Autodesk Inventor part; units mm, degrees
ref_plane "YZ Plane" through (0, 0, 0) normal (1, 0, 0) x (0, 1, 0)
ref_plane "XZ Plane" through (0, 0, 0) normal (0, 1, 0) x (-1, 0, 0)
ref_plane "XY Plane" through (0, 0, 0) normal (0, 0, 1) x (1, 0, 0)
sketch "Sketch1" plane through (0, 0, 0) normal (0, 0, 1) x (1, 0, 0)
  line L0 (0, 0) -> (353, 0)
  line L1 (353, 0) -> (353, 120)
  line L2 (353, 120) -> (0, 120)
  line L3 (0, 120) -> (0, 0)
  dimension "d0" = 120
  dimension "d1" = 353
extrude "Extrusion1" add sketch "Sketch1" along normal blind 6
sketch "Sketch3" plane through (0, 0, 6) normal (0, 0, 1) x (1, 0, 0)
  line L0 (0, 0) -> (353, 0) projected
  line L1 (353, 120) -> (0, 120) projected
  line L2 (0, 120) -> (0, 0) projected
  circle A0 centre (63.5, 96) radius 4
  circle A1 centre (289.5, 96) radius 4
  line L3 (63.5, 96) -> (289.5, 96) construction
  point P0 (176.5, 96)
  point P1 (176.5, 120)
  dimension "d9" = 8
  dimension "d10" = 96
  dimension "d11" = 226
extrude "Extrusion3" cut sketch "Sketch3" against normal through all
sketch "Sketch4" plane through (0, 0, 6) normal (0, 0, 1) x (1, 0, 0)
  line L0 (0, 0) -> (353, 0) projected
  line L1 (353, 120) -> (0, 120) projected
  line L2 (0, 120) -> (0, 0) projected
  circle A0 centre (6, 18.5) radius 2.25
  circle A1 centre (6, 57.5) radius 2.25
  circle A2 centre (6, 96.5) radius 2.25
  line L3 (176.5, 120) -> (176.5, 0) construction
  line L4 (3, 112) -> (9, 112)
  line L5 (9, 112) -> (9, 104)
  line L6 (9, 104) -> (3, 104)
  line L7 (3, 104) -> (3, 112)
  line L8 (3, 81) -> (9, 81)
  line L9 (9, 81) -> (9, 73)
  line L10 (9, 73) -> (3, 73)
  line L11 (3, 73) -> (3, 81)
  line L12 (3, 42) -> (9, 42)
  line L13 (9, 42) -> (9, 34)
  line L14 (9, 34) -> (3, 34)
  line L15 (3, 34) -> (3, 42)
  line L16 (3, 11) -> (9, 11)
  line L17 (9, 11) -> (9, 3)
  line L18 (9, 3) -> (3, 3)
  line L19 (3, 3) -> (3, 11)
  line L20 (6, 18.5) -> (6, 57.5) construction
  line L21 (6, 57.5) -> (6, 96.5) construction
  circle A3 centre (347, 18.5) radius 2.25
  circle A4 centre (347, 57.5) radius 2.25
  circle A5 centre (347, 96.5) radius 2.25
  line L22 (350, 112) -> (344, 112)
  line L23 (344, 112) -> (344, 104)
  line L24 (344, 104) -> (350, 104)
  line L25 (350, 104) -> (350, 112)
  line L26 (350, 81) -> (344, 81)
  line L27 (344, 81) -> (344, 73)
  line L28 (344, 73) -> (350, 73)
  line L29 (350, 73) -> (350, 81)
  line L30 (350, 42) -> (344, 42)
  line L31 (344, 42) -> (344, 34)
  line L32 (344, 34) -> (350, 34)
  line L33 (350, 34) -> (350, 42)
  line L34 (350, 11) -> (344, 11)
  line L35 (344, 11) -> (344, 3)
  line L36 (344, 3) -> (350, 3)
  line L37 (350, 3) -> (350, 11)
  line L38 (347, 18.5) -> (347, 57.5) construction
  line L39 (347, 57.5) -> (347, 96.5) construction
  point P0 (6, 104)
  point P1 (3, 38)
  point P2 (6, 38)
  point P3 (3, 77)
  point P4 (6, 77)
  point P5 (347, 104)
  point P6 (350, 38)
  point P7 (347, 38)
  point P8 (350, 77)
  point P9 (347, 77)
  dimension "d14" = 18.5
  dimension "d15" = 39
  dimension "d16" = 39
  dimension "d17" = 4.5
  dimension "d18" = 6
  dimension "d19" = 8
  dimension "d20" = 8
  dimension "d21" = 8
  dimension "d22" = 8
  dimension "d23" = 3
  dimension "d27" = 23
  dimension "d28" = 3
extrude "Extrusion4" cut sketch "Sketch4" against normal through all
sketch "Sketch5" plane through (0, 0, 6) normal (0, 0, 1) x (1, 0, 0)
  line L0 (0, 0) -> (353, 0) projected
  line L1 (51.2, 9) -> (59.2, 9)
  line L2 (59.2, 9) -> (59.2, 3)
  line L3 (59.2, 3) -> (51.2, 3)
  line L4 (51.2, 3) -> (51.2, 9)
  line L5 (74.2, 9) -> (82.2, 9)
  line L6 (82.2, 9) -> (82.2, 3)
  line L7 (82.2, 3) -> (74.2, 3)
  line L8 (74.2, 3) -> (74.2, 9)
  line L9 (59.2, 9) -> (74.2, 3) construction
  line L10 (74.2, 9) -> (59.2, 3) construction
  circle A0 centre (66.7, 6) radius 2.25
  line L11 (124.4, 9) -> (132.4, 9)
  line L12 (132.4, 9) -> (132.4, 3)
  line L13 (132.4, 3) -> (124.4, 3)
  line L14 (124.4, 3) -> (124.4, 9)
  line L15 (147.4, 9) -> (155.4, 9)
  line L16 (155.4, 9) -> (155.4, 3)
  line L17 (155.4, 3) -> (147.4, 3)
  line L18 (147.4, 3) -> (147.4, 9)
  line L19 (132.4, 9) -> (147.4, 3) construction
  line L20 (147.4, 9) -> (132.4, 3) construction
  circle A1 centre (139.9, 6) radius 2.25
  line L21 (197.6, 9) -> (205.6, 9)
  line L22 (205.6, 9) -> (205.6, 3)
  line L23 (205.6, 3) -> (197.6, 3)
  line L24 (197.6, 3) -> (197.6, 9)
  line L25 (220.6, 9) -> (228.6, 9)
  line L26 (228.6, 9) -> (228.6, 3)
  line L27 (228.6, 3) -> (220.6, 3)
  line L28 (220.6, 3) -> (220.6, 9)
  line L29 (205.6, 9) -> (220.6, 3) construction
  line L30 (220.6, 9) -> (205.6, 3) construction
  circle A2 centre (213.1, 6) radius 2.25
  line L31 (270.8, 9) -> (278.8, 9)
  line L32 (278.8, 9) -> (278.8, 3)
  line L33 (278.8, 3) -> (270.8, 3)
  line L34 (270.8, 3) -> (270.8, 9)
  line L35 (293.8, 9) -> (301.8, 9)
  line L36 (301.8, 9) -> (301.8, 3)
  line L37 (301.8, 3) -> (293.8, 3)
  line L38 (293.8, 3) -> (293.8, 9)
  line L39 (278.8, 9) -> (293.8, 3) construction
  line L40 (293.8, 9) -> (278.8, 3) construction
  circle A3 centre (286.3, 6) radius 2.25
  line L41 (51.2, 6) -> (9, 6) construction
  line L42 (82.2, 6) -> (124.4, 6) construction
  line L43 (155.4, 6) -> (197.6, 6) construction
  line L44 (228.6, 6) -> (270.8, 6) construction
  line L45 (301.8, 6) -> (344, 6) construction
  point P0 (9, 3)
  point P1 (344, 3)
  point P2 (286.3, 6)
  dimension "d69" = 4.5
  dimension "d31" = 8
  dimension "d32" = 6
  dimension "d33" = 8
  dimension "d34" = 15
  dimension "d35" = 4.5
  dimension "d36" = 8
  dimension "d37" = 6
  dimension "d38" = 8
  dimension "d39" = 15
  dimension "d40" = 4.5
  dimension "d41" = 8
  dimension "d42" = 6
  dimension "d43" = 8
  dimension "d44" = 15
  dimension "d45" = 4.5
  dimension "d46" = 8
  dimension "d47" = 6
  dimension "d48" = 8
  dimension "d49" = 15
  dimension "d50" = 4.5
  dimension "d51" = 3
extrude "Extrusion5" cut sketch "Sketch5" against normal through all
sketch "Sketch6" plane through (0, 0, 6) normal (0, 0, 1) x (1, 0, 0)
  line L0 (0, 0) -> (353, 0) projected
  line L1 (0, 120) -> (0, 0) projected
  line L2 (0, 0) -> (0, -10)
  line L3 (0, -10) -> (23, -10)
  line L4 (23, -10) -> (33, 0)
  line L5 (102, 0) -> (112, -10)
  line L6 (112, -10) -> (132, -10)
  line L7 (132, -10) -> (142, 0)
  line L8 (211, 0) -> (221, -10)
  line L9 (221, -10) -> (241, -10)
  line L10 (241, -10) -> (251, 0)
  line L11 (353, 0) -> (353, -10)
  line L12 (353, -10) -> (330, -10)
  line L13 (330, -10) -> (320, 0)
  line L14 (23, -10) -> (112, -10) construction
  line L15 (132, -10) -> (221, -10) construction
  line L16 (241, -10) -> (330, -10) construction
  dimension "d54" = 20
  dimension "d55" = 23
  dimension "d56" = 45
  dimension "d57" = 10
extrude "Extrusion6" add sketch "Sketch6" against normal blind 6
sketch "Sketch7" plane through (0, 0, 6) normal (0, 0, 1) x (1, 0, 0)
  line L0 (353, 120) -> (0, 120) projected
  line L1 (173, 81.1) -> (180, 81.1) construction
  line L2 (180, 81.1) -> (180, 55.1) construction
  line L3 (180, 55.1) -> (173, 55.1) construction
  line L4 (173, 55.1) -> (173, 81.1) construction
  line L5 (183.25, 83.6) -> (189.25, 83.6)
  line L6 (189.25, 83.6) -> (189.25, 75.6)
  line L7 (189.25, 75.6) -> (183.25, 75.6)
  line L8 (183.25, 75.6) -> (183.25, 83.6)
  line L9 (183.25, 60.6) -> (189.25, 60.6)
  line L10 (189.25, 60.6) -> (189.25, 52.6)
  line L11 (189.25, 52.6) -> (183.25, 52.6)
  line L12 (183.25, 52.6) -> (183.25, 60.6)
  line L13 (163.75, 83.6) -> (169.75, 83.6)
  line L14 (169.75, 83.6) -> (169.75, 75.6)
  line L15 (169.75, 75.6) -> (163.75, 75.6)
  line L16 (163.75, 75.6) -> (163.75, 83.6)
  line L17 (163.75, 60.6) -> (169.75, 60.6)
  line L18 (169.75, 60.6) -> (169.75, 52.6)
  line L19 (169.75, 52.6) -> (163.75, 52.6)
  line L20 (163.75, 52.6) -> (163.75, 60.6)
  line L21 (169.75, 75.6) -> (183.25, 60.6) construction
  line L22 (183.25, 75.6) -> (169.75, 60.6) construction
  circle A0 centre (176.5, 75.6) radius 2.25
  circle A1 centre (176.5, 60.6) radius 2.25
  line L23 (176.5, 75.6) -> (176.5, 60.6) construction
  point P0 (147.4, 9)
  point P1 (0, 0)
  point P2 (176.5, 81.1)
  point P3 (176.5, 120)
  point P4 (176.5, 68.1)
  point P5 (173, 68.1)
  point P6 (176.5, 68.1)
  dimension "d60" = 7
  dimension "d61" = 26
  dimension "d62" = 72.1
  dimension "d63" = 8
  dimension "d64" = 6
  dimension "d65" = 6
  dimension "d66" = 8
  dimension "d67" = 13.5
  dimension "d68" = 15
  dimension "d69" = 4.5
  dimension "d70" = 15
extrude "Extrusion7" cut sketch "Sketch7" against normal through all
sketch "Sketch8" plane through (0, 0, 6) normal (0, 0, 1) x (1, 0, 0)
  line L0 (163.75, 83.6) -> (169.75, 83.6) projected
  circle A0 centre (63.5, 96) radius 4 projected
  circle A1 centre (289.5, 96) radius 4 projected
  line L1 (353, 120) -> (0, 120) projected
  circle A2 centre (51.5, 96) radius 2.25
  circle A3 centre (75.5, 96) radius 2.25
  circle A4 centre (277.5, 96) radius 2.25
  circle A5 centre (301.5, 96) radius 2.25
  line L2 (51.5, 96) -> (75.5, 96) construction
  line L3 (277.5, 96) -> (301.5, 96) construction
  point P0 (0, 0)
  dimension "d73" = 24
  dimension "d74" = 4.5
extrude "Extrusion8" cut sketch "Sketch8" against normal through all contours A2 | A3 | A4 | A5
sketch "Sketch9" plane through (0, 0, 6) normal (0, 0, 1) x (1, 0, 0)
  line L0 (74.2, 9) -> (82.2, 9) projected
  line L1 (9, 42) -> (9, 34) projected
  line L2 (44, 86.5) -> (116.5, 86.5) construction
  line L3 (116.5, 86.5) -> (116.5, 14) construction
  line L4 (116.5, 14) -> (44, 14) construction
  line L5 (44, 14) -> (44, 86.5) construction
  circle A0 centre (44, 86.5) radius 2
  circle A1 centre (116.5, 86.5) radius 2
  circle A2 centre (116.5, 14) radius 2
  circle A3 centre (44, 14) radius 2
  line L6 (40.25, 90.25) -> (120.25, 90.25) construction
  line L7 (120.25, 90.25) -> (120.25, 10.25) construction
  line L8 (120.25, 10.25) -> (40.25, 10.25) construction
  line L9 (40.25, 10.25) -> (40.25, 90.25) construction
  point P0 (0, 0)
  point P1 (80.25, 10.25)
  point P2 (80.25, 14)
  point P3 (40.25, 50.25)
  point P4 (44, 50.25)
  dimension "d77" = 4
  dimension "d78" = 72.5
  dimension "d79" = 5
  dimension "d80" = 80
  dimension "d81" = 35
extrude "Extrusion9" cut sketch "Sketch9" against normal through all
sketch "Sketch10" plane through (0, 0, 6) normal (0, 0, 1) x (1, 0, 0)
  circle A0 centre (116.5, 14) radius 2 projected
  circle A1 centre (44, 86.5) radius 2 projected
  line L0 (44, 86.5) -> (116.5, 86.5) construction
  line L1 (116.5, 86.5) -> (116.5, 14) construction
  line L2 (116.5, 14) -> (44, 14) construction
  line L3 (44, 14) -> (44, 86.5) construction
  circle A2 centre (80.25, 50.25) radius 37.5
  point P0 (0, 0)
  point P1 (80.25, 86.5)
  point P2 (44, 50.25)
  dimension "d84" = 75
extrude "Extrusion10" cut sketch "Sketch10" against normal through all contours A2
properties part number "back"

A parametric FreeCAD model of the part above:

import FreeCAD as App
import Part
import Sketcher
from FreeCAD import Vector

doc = App.newDocument("Part")
body = doc.addObject("PartDesign::Body", "Body")

# Sketch on XY plane
sketch1 = body.newObject("Sketcher::SketchObject", "Sketch")
sketch1.AttachmentSupport = (doc.getObject("XY_Plane"), [""])
sketch1.MapMode = "FlatFace"
sketch1.addGeometry([
    Part.LineSegment(Vector(0, 120, 0), Vector(0, 0, 0)),
    Part.LineSegment(Vector(0, 0, 0), Vector(353, 0, 0)),
    Part.LineSegment(Vector(353, 0, 0), Vector(353, 120, 0)),
    Part.LineSegment(Vector(353, 120, 0), Vector(0, 120, 0)),
], False)
sketch1.addConstraint([
    Sketcher.Constraint("Coincident", 0, 2, 1, 1),
    Sketcher.Constraint("Coincident", 1, 2, 2, 1),
    Sketcher.Constraint("Coincident", 2, 2, 3, 1),
    Sketcher.Constraint("Coincident", 3, 2, 0, 1),
    Sketcher.Constraint("Vertical", 0),
    Sketcher.Constraint("Horizontal", 1),
    Sketcher.Constraint("Vertical", 2),
    Sketcher.Constraint("Horizontal", 3),
    Sketcher.Constraint("Coincident", 0, 2, -1, 1),
    Sketcher.Constraint("DistanceX", 1, 1, 1, 2, 353.0),
    Sketcher.Constraint("DistanceY", 0, 2, 0, 1, 120.0),
])
pad1 = body.newObject("PartDesign::Pad", "Pad")
pad1.Profile = sketch1
pad1.Length = 6

# Sketch on XY plane
sketch2 = body.newObject("Sketcher::SketchObject", "Sketch001")
sketch2.AttachmentSupport = (doc.getObject("XY_Plane"), [""])
sketch2.MapMode = "FlatFace"
sketch2.AttachmentOffset = App.Placement(Vector(0, 0, 6), App.Rotation())
sketch2.addGeometry([
    Part.Circle(Vector(63.5, 96, 0), Vector(0, 0, 1), 4),
    Part.Circle(Vector(289.5, 96, 0), Vector(0, 0, 1), 4),
], False)
sketch2.addConstraint([
    Sketcher.Constraint("Equal", 0, 1),
    Sketcher.Constraint("Horizontal", 0, 3, 1, 3),
    Sketcher.Constraint("Diameter", 0, 8.0),
    Sketcher.Constraint("DistanceY", -1, 1, 0, 3, 96.0),
    Sketcher.Constraint("DistanceX", 0, 3, 1, 3, 226.0),
    Sketcher.Constraint("DistanceX", -1, 1, 0, 3, 63.5),
])
pocket1 = body.newObject("PartDesign::Pocket", "Pocket")
pocket1.Profile = sketch2
pocket1.Type = "ThroughAll"

# Sketch on XY plane
sketch3 = body.newObject("Sketcher::SketchObject", "Sketch002")
sketch3.AttachmentSupport = (doc.getObject("XY_Plane"), [""])
sketch3.MapMode = "FlatFace"
sketch3.AttachmentOffset = App.Placement(Vector(0, 0, 6), App.Rotation())
sketch3.addGeometry([
    Part.Circle(Vector(6, 18.5, 0), Vector(0, 0, 1), 2.2),  # 0
    Part.Circle(Vector(6, 57.5, 0), Vector(0, 0, 1), 2.2),  # 1
    Part.Circle(Vector(6, 96.5, 0), Vector(0, 0, 1), 2.2),  # 2
    Part.LineSegment(Vector(9, 112, 0), Vector(3, 112, 0)),  # 3
    Part.LineSegment(Vector(3, 112, 0), Vector(3, 104, 0)),  # 4
    Part.LineSegment(Vector(3, 104, 0), Vector(9, 104, 0)),  # 5
    Part.LineSegment(Vector(9, 104, 0), Vector(9, 112, 0)),  # 6
    Part.LineSegment(Vector(9, 81, 0), Vector(3, 81, 0)),  # 7
    Part.LineSegment(Vector(3, 81, 0), Vector(3, 73, 0)),  # 8
    Part.LineSegment(Vector(3, 73, 0), Vector(9, 73, 0)),  # 9
    Part.LineSegment(Vector(9, 73, 0), Vector(9, 81, 0)),  # 10
    Part.LineSegment(Vector(9, 42, 0), Vector(3, 42, 0)),  # 11
    Part.LineSegment(Vector(3, 42, 0), Vector(3, 34, 0)),  # 12
    Part.LineSegment(Vector(3, 34, 0), Vector(9, 34, 0)),  # 13
    Part.LineSegment(Vector(9, 34, 0), Vector(9, 42, 0)),  # 14
    Part.LineSegment(Vector(9, 11, 0), Vector(3, 11, 0)),  # 15
    Part.LineSegment(Vector(3, 11, 0), Vector(3, 3, 0)),  # 16
    Part.LineSegment(Vector(3, 3, 0), Vector(9, 3, 0)),  # 17
    Part.LineSegment(Vector(9, 3, 0), Vector(9, 11, 0)),  # 18
    Part.Circle(Vector(347, 18.5, 0), Vector(0, 0, 1), 2.2),  # 19
    Part.Circle(Vector(347, 57.5, 0), Vector(0, 0, 1), 2.2),  # 20
    Part.Circle(Vector(347, 96.5, 0), Vector(0, 0, 1), 2.2),  # 21
    Part.LineSegment(Vector(350, 104, 0), Vector(350, 112, 0)),  # 22
    Part.LineSegment(Vector(350, 112, 0), Vector(344, 112, 0)),  # 23
    Part.LineSegment(Vector(344, 112, 0), Vector(344, 104, 0)),  # 24
    Part.LineSegment(Vector(344, 104, 0), Vector(350, 104, 0)),  # 25
    Part.LineSegment(Vector(350, 73, 0), Vector(350, 81, 0)),  # 26
    Part.LineSegment(Vector(350, 81, 0), Vector(344, 81, 0)),  # 27
    Part.LineSegment(Vector(344, 81, 0), Vector(344, 73, 0)),  # 28
    Part.LineSegment(Vector(344, 73, 0), Vector(350, 73, 0)),  # 29
    Part.LineSegment(Vector(350, 34, 0), Vector(350, 42, 0)),  # 30
    Part.LineSegment(Vector(350, 42, 0), Vector(344, 42, 0)),  # 31
    Part.LineSegment(Vector(344, 42, 0), Vector(344, 34, 0)),  # 32
    Part.LineSegment(Vector(344, 34, 0), Vector(350, 34, 0)),  # 33
    Part.LineSegment(Vector(350, 3, 0), Vector(350, 11, 0)),  # 34
    Part.LineSegment(Vector(350, 11, 0), Vector(344, 11, 0)),  # 35
    Part.LineSegment(Vector(344, 11, 0), Vector(344, 3, 0)),  # 36
    Part.LineSegment(Vector(344, 3, 0), Vector(350, 3, 0)),  # 37
], False)
sketch3.addConstraint([
    Sketcher.Constraint("Coincident", 3, 2, 4, 1),
    Sketcher.Constraint("Coincident", 4, 2, 5, 1),
    Sketcher.Constraint("Coincident", 5, 2, 6, 1),
    Sketcher.Constraint("Coincident", 6, 2, 3, 1),
    Sketcher.Constraint("Coincident", 7, 2, 8, 1),
    Sketcher.Constraint("Coincident", 8, 2, 9, 1),
    Sketcher.Constraint("Coincident", 9, 2, 10, 1),
    Sketcher.Constraint("Coincident", 10, 2, 7, 1),
    Sketcher.Constraint("Coincident", 11, 2, 12, 1),
    Sketcher.Constraint("Coincident", 12, 2, 13, 1),
    Sketcher.Constraint("Coincident", 13, 2, 14, 1),
    Sketcher.Constraint("Coincident", 14, 2, 11, 1),
    Sketcher.Constraint("Coincident", 15, 2, 16, 1),
    Sketcher.Constraint("Coincident", 16, 2, 17, 1),
    Sketcher.Constraint("Coincident", 17, 2, 18, 1),
    Sketcher.Constraint("Coincident", 18, 2, 15, 1),
    Sketcher.Constraint("Coincident", 22, 2, 23, 1),
    Sketcher.Constraint("Coincident", 23, 2, 24, 1),
    Sketcher.Constraint("Coincident", 24, 2, 25, 1),
    Sketcher.Constraint("Coincident", 25, 2, 22, 1),
    Sketcher.Constraint("Coincident", 26, 2, 27, 1),
    Sketcher.Constraint("Coincident", 27, 2, 28, 1),
    Sketcher.Constraint("Coincident", 28, 2, 29, 1),
    Sketcher.Constraint("Coincident", 29, 2, 26, 1),
    Sketcher.Constraint("Coincident", 30, 2, 31, 1),
    Sketcher.Constraint("Coincident", 31, 2, 32, 1),
    Sketcher.Constraint("Coincident", 32, 2, 33, 1),
    Sketcher.Constraint("Coincident", 33, 2, 30, 1),
    Sketcher.Constraint("Coincident", 34, 2, 35, 1),
    Sketcher.Constraint("Coincident", 35, 2, 36, 1),
    Sketcher.Constraint("Coincident", 36, 2, 37, 1),
    Sketcher.Constraint("Coincident", 37, 2, 34, 1),
    Sketcher.Constraint("Horizontal", 3),
    Sketcher.Constraint("Vertical", 4),
    Sketcher.Constraint("Horizontal", 5),
    Sketcher.Constraint("Vertical", 6),
    Sketcher.Constraint("Horizontal", 7),
    Sketcher.Constraint("Vertical", 8),
    Sketcher.Constraint("Horizontal", 9),
    Sketcher.Constraint("Vertical", 10),
    Sketcher.Constraint("Horizontal", 11),
    Sketcher.Constraint("Vertical", 12),
    Sketcher.Constraint("Horizontal", 13),
    Sketcher.Constraint("Vertical", 14),
    Sketcher.Constraint("Horizontal", 15),
    Sketcher.Constraint("Vertical", 16),
    Sketcher.Constraint("Horizontal", 17),
    Sketcher.Constraint("Vertical", 18),
    Sketcher.Constraint("Vertical", 22),
    Sketcher.Constraint("Horizontal", 23),
    Sketcher.Constraint("Vertical", 24),
    Sketcher.Constraint("Horizontal", 25),
    Sketcher.Constraint("Vertical", 26),
    Sketcher.Constraint("Horizontal", 27),
    Sketcher.Constraint("Vertical", 28),
    Sketcher.Constraint("Horizontal", 29),
    Sketcher.Constraint("Vertical", 30),
    Sketcher.Constraint("Horizontal", 31),
    Sketcher.Constraint("Vertical", 32),
    Sketcher.Constraint("Horizontal", 33),
    Sketcher.Constraint("Vertical", 34),
    Sketcher.Constraint("Horizontal", 35),
    Sketcher.Constraint("Vertical", 36),
    Sketcher.Constraint("Horizontal", 37),
    Sketcher.Constraint("Equal", 0, 1),
    Sketcher.Constraint("Equal", 1, 2),
    Sketcher.Constraint("Equal", 2, 19),
    Sketcher.Constraint("Equal", 19, 20),
    Sketcher.Constraint("Equal", 20, 21),
    Sketcher.Constraint("Horizontal", 0, 3, 19, 3),
    Sketcher.Constraint("Horizontal", 1, 3, 20, 3),
    Sketcher.Constraint("Horizontal", 2, 3, 21, 3),
    Sketcher.Constraint("Horizontal", 6, 2, 22, 2),
    Sketcher.Constraint("Horizontal", 5, 2, 24, 2),
    Sketcher.Constraint("Horizontal", 10, 2, 26, 2),
    Sketcher.Constraint("Horizontal", 9, 2, 28, 2),
    Sketcher.Constraint("Horizontal", 14, 2, 30, 2),
    Sketcher.Constraint("Horizontal", 13, 2, 32, 2),
    Sketcher.Constraint("Horizontal", 18, 2, 34, 2),
    Sketcher.Constraint("Horizontal", 17, 2, 36, 2),
    Sketcher.Constraint("Vertical", 0, 3, 1, 3),
    Sketcher.Constraint("Vertical", 1, 3, 2, 3),
    Sketcher.Constraint("Vertical", 19, 3, 20, 3),
    Sketcher.Constraint("Vertical", 20, 3, 21, 3),
    Sketcher.Constraint("Vertical", 4, 2, 7, 2),
    Sketcher.Constraint("Vertical", 6, 2, 9, 2),
    Sketcher.Constraint("Vertical", 8, 2, 11, 2),
    Sketcher.Constraint("Vertical", 10, 2, 13, 2),
    Sketcher.Constraint("Vertical", 12, 2, 15, 2),
    Sketcher.Constraint("Vertical", 14, 2, 17, 2),
    Sketcher.Constraint("Vertical", 25, 2, 26, 2),
    Sketcher.Constraint("Vertical", 24, 2, 27, 2),
    Sketcher.Constraint("Vertical", 29, 2, 30, 2),
    Sketcher.Constraint("Vertical", 28, 2, 31, 2),
    Sketcher.Constraint("Vertical", 33, 2, 34, 2),
    Sketcher.Constraint("Vertical", 32, 2, 35, 2),
    Sketcher.Constraint("Equal", 17, 23),
    Sketcher.Constraint("Equal", 6, 8),
    Sketcher.Constraint("Equal", 10, 12),
    Sketcher.Constraint("Equal", 14, 16),
    Sketcher.Constraint("Diameter", 0, 4.5),
    Sketcher.Constraint("DistanceX", 3, 2, 3, 1, 6.0),
    Sketcher.Constraint("DistanceY", 4, 2, 4, 1, 8.0),
    Sketcher.Constraint("DistanceX", -1, 1, 0, 3, 6.0),
    Sketcher.Constraint("DistanceX", -1, 1, 3, 2, 3.0),
    Sketcher.Constraint("DistanceY", -1, 1, 16, 2, 3.0),
    Sketcher.Constraint("DistanceY", 0, 3, 1, 3, 39.0),
    Sketcher.Constraint("DistanceY", 1, 3, 2, 3, 39.0),
    Sketcher.Constraint("DistanceY", 7, 2, 4, 2, 23.0),
    Sketcher.Constraint("DistanceY", 11, 2, 7, 2, 39.0),
    Sketcher.Constraint("DistanceY", 15, 2, 12, 2, 23.0),
    Sketcher.Constraint("DistanceX", 21, 3, 22, 2, 3.0),
    Sketcher.Constraint("DistanceY", -1, 1, 0, 3, 18.5),
    Sketcher.Constraint("DistanceX", -1, 1, 19, 3, 347.0),
])
pocket2 = body.newObject("PartDesign::Pocket", "Pocket001")
pocket2.Profile = sketch3
pocket2.Type = "ThroughAll"

# Sketch on XY plane
sketch4 = body.newObject("Sketcher::SketchObject", "Sketch003")
sketch4.AttachmentSupport = (doc.getObject("XY_Plane"), [""])
sketch4.MapMode = "FlatFace"
sketch4.AttachmentOffset = App.Placement(Vector(0, 0, 6), App.Rotation())
sketch4.addGeometry([
    Part.LineSegment(Vector(59.2, 9, 0), Vector(51.2, 9, 0)),  # 0
    Part.LineSegment(Vector(51.2, 9, 0), Vector(51.2, 3, 0)),  # 1
    Part.LineSegment(Vector(51.2, 3, 0), Vector(59.2, 3, 0)),  # 2
    Part.LineSegment(Vector(59.2, 3, 0), Vector(59.2, 9, 0)),  # 3
    Part.LineSegment(Vector(82.2, 9, 0), Vector(74.2, 9, 0)),  # 4
    Part.LineSegment(Vector(74.2, 9, 0), Vector(74.2, 3, 0)),  # 5
    Part.LineSegment(Vector(74.2, 3, 0), Vector(82.2, 3, 0)),  # 6
    Part.LineSegment(Vector(82.2, 3, 0), Vector(82.2, 9, 0)),  # 7
    Part.Circle(Vector(66.7, 6, 0), Vector(0, 0, 1), 2.2),  # 8
    Part.LineSegment(Vector(132.4, 9, 0), Vector(124.4, 9, 0)),  # 9
    Part.LineSegment(Vector(124.4, 9, 0), Vector(124.4, 3, 0)),  # 10
    Part.LineSegment(Vector(124.4, 3, 0), Vector(132.4, 3, 0)),  # 11
    Part.LineSegment(Vector(132.4, 3, 0), Vector(132.4, 9, 0)),  # 12
    Part.LineSegment(Vector(155.4, 9, 0), Vector(147.4, 9, 0)),  # 13
    Part.LineSegment(Vector(147.4, 9, 0), Vector(147.4, 3, 0)),  # 14
    Part.LineSegment(Vector(147.4, 3, 0), Vector(155.4, 3, 0)),  # 15
    Part.LineSegment(Vector(155.4, 3, 0), Vector(155.4, 9, 0)),  # 16
    Part.Circle(Vector(139.9, 6, 0), Vector(0, 0, 1), 2.2),  # 17
    Part.LineSegment(Vector(205.6, 9, 0), Vector(197.6, 9, 0)),  # 18
    Part.LineSegment(Vector(197.6, 9, 0), Vector(197.6, 3, 0)),  # 19
    Part.LineSegment(Vector(197.6, 3, 0), Vector(205.6, 3, 0)),  # 20
    Part.LineSegment(Vector(205.6, 3, 0), Vector(205.6, 9, 0)),  # 21
    Part.LineSegment(Vector(228.6, 9, 0), Vector(220.6, 9, 0)),  # 22
    Part.LineSegment(Vector(220.6, 9, 0), Vector(220.6, 3, 0)),  # 23
    Part.LineSegment(Vector(220.6, 3, 0), Vector(228.6, 3, 0)),  # 24
    Part.LineSegment(Vector(228.6, 3, 0), Vector(228.6, 9, 0)),  # 25
    Part.Circle(Vector(213.1, 6, 0), Vector(0, 0, 1), 2.2),  # 26
    Part.LineSegment(Vector(278.8, 9, 0), Vector(270.8, 9, 0)),  # 27
    Part.LineSegment(Vector(270.8, 9, 0), Vector(270.8, 3, 0)),  # 28
    Part.LineSegment(Vector(270.8, 3, 0), Vector(278.8, 3, 0)),  # 29
    Part.LineSegment(Vector(278.8, 3, 0), Vector(278.8, 9, 0)),  # 30
    Part.LineSegment(Vector(301.8, 9, 0), Vector(293.8, 9, 0)),  # 31
    Part.LineSegment(Vector(293.8, 9, 0), Vector(293.8, 3, 0)),  # 32
    Part.LineSegment(Vector(293.8, 3, 0), Vector(301.8, 3, 0)),  # 33
    Part.LineSegment(Vector(301.8, 3, 0), Vector(301.8, 9, 0)),  # 34
    Part.Circle(Vector(286.3, 6, 0), Vector(0, 0, 1), 2.2),  # 35
], False)
sketch4.addConstraint([
    Sketcher.Constraint("Coincident", 0, 2, 1, 1),
    Sketcher.Constraint("Coincident", 1, 2, 2, 1),
    Sketcher.Constraint("Coincident", 2, 2, 3, 1),
    Sketcher.Constraint("Coincident", 3, 2, 0, 1),
    Sketcher.Constraint("Coincident", 4, 2, 5, 1),
    Sketcher.Constraint("Coincident", 5, 2, 6, 1),
    Sketcher.Constraint("Coincident", 6, 2, 7, 1),
    Sketcher.Constraint("Coincident", 7, 2, 4, 1),
    Sketcher.Constraint("Coincident", 9, 2, 10, 1),
    Sketcher.Constraint("Coincident", 10, 2, 11, 1),
    Sketcher.Constraint("Coincident", 11, 2, 12, 1),
    Sketcher.Constraint("Coincident", 12, 2, 9, 1),
    Sketcher.Constraint("Coincident", 13, 2, 14, 1),
    Sketcher.Constraint("Coincident", 14, 2, 15, 1),
    Sketcher.Constraint("Coincident", 15, 2, 16, 1),
    Sketcher.Constraint("Coincident", 16, 2, 13, 1),
    Sketcher.Constraint("Coincident", 18, 2, 19, 1),
    Sketcher.Constraint("Coincident", 19, 2, 20, 1),
    Sketcher.Constraint("Coincident", 20, 2, 21, 1),
    Sketcher.Constraint("Coincident", 21, 2, 18, 1),
    Sketcher.Constraint("Coincident", 22, 2, 23, 1),
    Sketcher.Constraint("Coincident", 23, 2, 24, 1),
    Sketcher.Constraint("Coincident", 24, 2, 25, 1),
    Sketcher.Constraint("Coincident", 25, 2, 22, 1),
    Sketcher.Constraint("Coincident", 27, 2, 28, 1),
    Sketcher.Constraint("Coincident", 28, 2, 29, 1),
    Sketcher.Constraint("Coincident", 29, 2, 30, 1),
    Sketcher.Constraint("Coincident", 30, 2, 27, 1),
    Sketcher.Constraint("Coincident", 31, 2, 32, 1),
    Sketcher.Constraint("Coincident", 32, 2, 33, 1),
    Sketcher.Constraint("Coincident", 33, 2, 34, 1),
    Sketcher.Constraint("Coincident", 34, 2, 31, 1),
    Sketcher.Constraint("Horizontal", 0),
    Sketcher.Constraint("Vertical", 1),
    Sketcher.Constraint("Horizontal", 2),
    Sketcher.Constraint("Vertical", 3),
    Sketcher.Constraint("Horizontal", 4),
    Sketcher.Constraint("Vertical", 5),
    Sketcher.Constraint("Horizontal", 6),
    Sketcher.Constraint("Vertical", 7),
    Sketcher.Constraint("Horizontal", 9),
    Sketcher.Constraint("Vertical", 10),
    Sketcher.Constraint("Horizontal", 11),
    Sketcher.Constraint("Vertical", 12),
    Sketcher.Constraint("Horizontal", 13),
    Sketcher.Constraint("Vertical", 14),
    Sketcher.Constraint("Horizontal", 15),
    Sketcher.Constraint("Vertical", 16),
    Sketcher.Constraint("Horizontal", 18),
    Sketcher.Constraint("Vertical", 19),
    Sketcher.Constraint("Horizontal", 20),
    Sketcher.Constraint("Vertical", 21),
    Sketcher.Constraint("Horizontal", 22),
    Sketcher.Constraint("Vertical", 23),
    Sketcher.Constraint("Horizontal", 24),
    Sketcher.Constraint("Vertical", 25),
    Sketcher.Constraint("Horizontal", 27),
    Sketcher.Constraint("Vertical", 28),
    Sketcher.Constraint("Horizontal", 29),
    Sketcher.Constraint("Vertical", 30),
    Sketcher.Constraint("Horizontal", 31),
    Sketcher.Constraint("Vertical", 32),
    Sketcher.Constraint("Horizontal", 33),
    Sketcher.Constraint("Vertical", 34),
    Sketcher.Constraint("Equal", 8, 17),
    Sketcher.Constraint("Equal", 17, 26),
    Sketcher.Constraint("Equal", 26, 35),
    Sketcher.Constraint("Horizontal", 8, 3, 17, 3),
    Sketcher.Constraint("Horizontal", 17, 3, 26, 3),
    Sketcher.Constraint("Horizontal", 26, 3, 35, 3),
    Sketcher.Constraint("Horizontal", 3, 2, 4, 2),
    Sketcher.Constraint("Horizontal", 2, 2, 5, 2),
    Sketcher.Constraint("Horizontal", 7, 2, 9, 2),
    Sketcher.Constraint("Horizontal", 6, 2, 10, 2),
    Sketcher.Constraint("Horizontal", 12, 2, 13, 2),
    Sketcher.Constraint("Horizontal", 11, 2, 14, 2),
    Sketcher.Constraint("Horizontal", 16, 2, 18, 2),
    Sketcher.Constraint("Horizontal", 15, 2, 19, 2),
    Sketcher.Constraint("Horizontal", 21, 2, 22, 2),
    Sketcher.Constraint("Horizontal", 20, 2, 23, 2),
    Sketcher.Constraint("Horizontal", 25, 2, 27, 2),
    Sketcher.Constraint("Horizontal", 24, 2, 28, 2),
    Sketcher.Constraint("Horizontal", 30, 2, 31, 2),
    Sketcher.Constraint("Horizontal", 29, 2, 32, 2),
    Sketcher.Constraint("Equal", 2, 4),
    Sketcher.Constraint("Equal", 6, 9),
    Sketcher.Constraint("Equal", 11, 13),
    Sketcher.Constraint("Equal", 15, 18),
    Sketcher.Constraint("Equal", 20, 22),
    Sketcher.Constraint("Equal", 24, 27),
    Sketcher.Constraint("Equal", 29, 31),
    Sketcher.Constraint("Diameter", 8, 4.5),
    Sketcher.Constraint("DistanceX", 0, 2, 0, 1, 8.0),
    Sketcher.Constraint("DistanceY", 1, 2, 1, 1, 6.0),
    Sketcher.Constraint("DistanceY", -1, 1, 8, 3, 6.0),
    Sketcher.Constraint("DistanceY", -1, 1, 1, 2, 3.0),
    Sketcher.Constraint("DistanceX", 3, 2, 4, 2, 15.0),
    Sketcher.Constraint("DistanceX", 12, 2, 13, 2, 15.0),
    Sketcher.Constraint("DistanceX", 21, 2, 22, 2, 15.0),
    Sketcher.Constraint("DistanceX", 30, 2, 31, 2, 15.0),
    Sketcher.Constraint("DistanceX", -1, 1, 8, 3, 66.7),
    Sketcher.Constraint("DistanceX", -1, 1, 17, 3, 139.9),
    Sketcher.Constraint("DistanceX", -1, 1, 26, 3, 213.1),
    Sketcher.Constraint("DistanceX", -1, 1, 35, 3, 286.3),
    Sketcher.Constraint("DistanceX", -1, 1, 0, 2, 51.2),
    Sketcher.Constraint("DistanceX", -1, 1, 9, 2, 124.4),
    Sketcher.Constraint("DistanceX", -1, 1, 18, 2, 197.6),
    Sketcher.Constraint("DistanceX", -1, 1, 27, 2, 270.8),
])
pocket3 = body.newObject("PartDesign::Pocket", "Pocket002")
pocket3.Profile = sketch4
pocket3.Type = "ThroughAll"

# Sketch on XY plane
sketch5 = body.newObject("Sketcher::SketchObject", "Sketch004")
sketch5.AttachmentSupport = (doc.getObject("XY_Plane"), [""])
sketch5.MapMode = "FlatFace"
sketch5.AttachmentOffset = App.Placement(Vector(0, 0, 6), App.Rotation())
sketch5.addGeometry([
    Part.LineSegment(Vector(353, 0, 0), Vector(320, 0, 0)),  # 0
    Part.LineSegment(Vector(320, 0, 0), Vector(330, -10, 0)),  # 1
    Part.LineSegment(Vector(330, -10, 0), Vector(353, -10, 0)),  # 2
    Part.LineSegment(Vector(353, -10, 0), Vector(353, 0, 0)),  # 3
    Part.LineSegment(Vector(251, 0, 0), Vector(211, 0, 0)),  # 4
    Part.LineSegment(Vector(211, 0, 0), Vector(221, -10, 0)),  # 5
    Part.LineSegment(Vector(221, -10, 0), Vector(241, -10, 0)),  # 6
    Part.LineSegment(Vector(241, -10, 0), Vector(251, 0, 0)),  # 7
    Part.LineSegment(Vector(142, 0, 0), Vector(102, 0, 0)),  # 8
    Part.LineSegment(Vector(102, 0, 0), Vector(112, -10, 0)),  # 9
    Part.LineSegment(Vector(112, -10, 0), Vector(132, -10, 0)),  # 10
    Part.LineSegment(Vector(132, -10, 0), Vector(142, 0, 0)),  # 11
    Part.LineSegment(Vector(33, 0, 0), Vector(0, 0, 0)),  # 12
    Part.LineSegment(Vector(0, 0, 0), Vector(0, -10, 0)),  # 13
    Part.LineSegment(Vector(0, -10, 0), Vector(23, -10, 0)),  # 14
    Part.LineSegment(Vector(23, -10, 0), Vector(33, 0, 0)),  # 15
], False)
sketch5.addConstraint([
    Sketcher.Constraint("Coincident", 0, 2, 1, 1),
    Sketcher.Constraint("Coincident", 1, 2, 2, 1),
    Sketcher.Constraint("Coincident", 2, 2, 3, 1),
    Sketcher.Constraint("Coincident", 3, 2, 0, 1),
    Sketcher.Constraint("Coincident", 4, 2, 5, 1),
    Sketcher.Constraint("Coincident", 5, 2, 6, 1),
    Sketcher.Constraint("Coincident", 6, 2, 7, 1),
    Sketcher.Constraint("Coincident", 7, 2, 4, 1),
    Sketcher.Constraint("Coincident", 8, 2, 9, 1),
    Sketcher.Constraint("Coincident", 9, 2, 10, 1),
    Sketcher.Constraint("Coincident", 10, 2, 11, 1),
    Sketcher.Constraint("Coincident", 11, 2, 8, 1),
    Sketcher.Constraint("Coincident", 12, 2, 13, 1),
    Sketcher.Constraint("Coincident", 13, 2, 14, 1),
    Sketcher.Constraint("Coincident", 14, 2, 15, 1),
    Sketcher.Constraint("Coincident", 15, 2, 12, 1),
    Sketcher.Constraint("Horizontal", 0),
    Sketcher.Constraint("Horizontal", 2),
    Sketcher.Constraint("Vertical", 3),
    Sketcher.Constraint("Horizontal", 4),
    Sketcher.Constraint("Horizontal", 6),
    Sketcher.Constraint("Horizontal", 8),
    Sketcher.Constraint("Horizontal", 10),
    Sketcher.Constraint("Horizontal", 12),
    Sketcher.Constraint("Vertical", 13),
    Sketcher.Constraint("Horizontal", 14),
    Sketcher.Constraint("Coincident", 12, 2, -1, 1),
    Sketcher.Constraint("PointOnObject", 0, 2, -1),
    Sketcher.Constraint("PointOnObject", 4, 2, -1),
    Sketcher.Constraint("PointOnObject", 8, 2, -1),
    Sketcher.Constraint("Parallel", 1, 5),
    Sketcher.Constraint("Perpendicular", 5, 7),
    Sketcher.Constraint("Perpendicular", 7, 9),
    Sketcher.Constraint("Perpendicular", 9, 11),
    Sketcher.Constraint("Parallel", 11, 15),
    Sketcher.Constraint("Horizontal", 2, 2, 5, 2),
    Sketcher.Constraint("Horizontal", 6, 2, 9, 2),
    Sketcher.Constraint("Horizontal", 10, 2, 13, 2),
    Sketcher.Constraint("Equal", 4, 8),
    Sketcher.Constraint("Equal", 0, 12),
    Sketcher.Constraint("Equal", 2, 14),
    Sketcher.Constraint("DistanceX", 2, 1, 2, 2, 23.0),
    Sketcher.Constraint("DistanceX", 6, 1, 6, 2, 20.0),
    Sketcher.Constraint("DistanceY", 3, 1, 3, 2, 10.0),
    Sketcher.Constraint("DistanceX", -1, 1, 0, 2, 320.0),
    Sketcher.Constraint("DistanceX", -1, 1, 4, 2, 211.0),
    Sketcher.Constraint("DistanceX", -1, 1, 8, 2, 102.0),
])
pad2 = body.newObject("PartDesign::Pad", "Pad001")
pad2.Profile = sketch5
pad2.Length = 6
pad2.Reversed = True

# Sketch on XY plane
sketch6 = body.newObject("Sketcher::SketchObject", "Sketch005")
sketch6.AttachmentSupport = (doc.getObject("XY_Plane"), [""])
sketch6.MapMode = "FlatFace"
sketch6.AttachmentOffset = App.Placement(Vector(0, 0, 6), App.Rotation())
sketch6.addGeometry([
    Part.LineSegment(Vector(189.2, 83.6, 0), Vector(183.2, 83.6, 0)),  # 0
    Part.LineSegment(Vector(183.2, 83.6, 0), Vector(183.2, 75.6, 0)),  # 1
    Part.LineSegment(Vector(183.2, 75.6, 0), Vector(189.2, 75.6, 0)),  # 2
    Part.LineSegment(Vector(189.2, 75.6, 0), Vector(189.2, 83.6, 0)),  # 3
    Part.LineSegment(Vector(189.2, 60.6, 0), Vector(183.2, 60.6, 0)),  # 4
    Part.LineSegment(Vector(183.2, 60.6, 0), Vector(183.2, 52.6, 0)),  # 5
    Part.LineSegment(Vector(183.2, 52.6, 0), Vector(189.2, 52.6, 0)),  # 6
    Part.LineSegment(Vector(189.2, 52.6, 0), Vector(189.2, 60.6, 0)),  # 7
    Part.LineSegment(Vector(169.8, 83.6, 0), Vector(163.8, 83.6, 0)),  # 8
    Part.LineSegment(Vector(163.8, 83.6, 0), Vector(163.8, 75.6, 0)),  # 9
    Part.LineSegment(Vector(163.8, 75.6, 0), Vector(169.8, 75.6, 0)),  # 10
    Part.LineSegment(Vector(169.8, 75.6, 0), Vector(169.8, 83.6, 0)),  # 11
    Part.LineSegment(Vector(169.8, 60.6, 0), Vector(163.8, 60.6, 0)),  # 12
    Part.LineSegment(Vector(163.8, 60.6, 0), Vector(163.8, 52.6, 0)),  # 13
    Part.LineSegment(Vector(163.8, 52.6, 0), Vector(169.8, 52.6, 0)),  # 14
    Part.LineSegment(Vector(169.8, 52.6, 0), Vector(169.8, 60.6, 0)),  # 15
    Part.Circle(Vector(176.5, 75.6, 0), Vector(0, 0, 1), 2.2),  # 16
    Part.Circle(Vector(176.5, 60.6, 0), Vector(0, 0, 1), 2.2),  # 17
], False)
sketch6.addConstraint([
    Sketcher.Constraint("Coincident", 0, 2, 1, 1),
    Sketcher.Constraint("Coincident", 1, 2, 2, 1),
    Sketcher.Constraint("Coincident", 2, 2, 3, 1),
    Sketcher.Constraint("Coincident", 3, 2, 0, 1),
    Sketcher.Constraint("Coincident", 4, 2, 5, 1),
    Sketcher.Constraint("Coincident", 5, 2, 6, 1),
    Sketcher.Constraint("Coincident", 6, 2, 7, 1),
    Sketcher.Constraint("Coincident", 7, 2, 4, 1),
    Sketcher.Constraint("Coincident", 8, 2, 9, 1),
    Sketcher.Constraint("Coincident", 9, 2, 10, 1),
    Sketcher.Constraint("Coincident", 10, 2, 11, 1),
    Sketcher.Constraint("Coincident", 11, 2, 8, 1),
    Sketcher.Constraint("Coincident", 12, 2, 13, 1),
    Sketcher.Constraint("Coincident", 13, 2, 14, 1),
    Sketcher.Constraint("Coincident", 14, 2, 15, 1),
    Sketcher.Constraint("Coincident", 15, 2, 12, 1),
    Sketcher.Constraint("Horizontal", 0),
    Sketcher.Constraint("Vertical", 1),
    Sketcher.Constraint("Horizontal", 2),
    Sketcher.Constraint("Vertical", 3),
    Sketcher.Constraint("Horizontal", 4),
    Sketcher.Constraint("Vertical", 5),
    Sketcher.Constraint("Horizontal", 6),
    Sketcher.Constraint("Vertical", 7),
    Sketcher.Constraint("Horizontal", 8),
    Sketcher.Constraint("Vertical", 9),
    Sketcher.Constraint("Horizontal", 10),
    Sketcher.Constraint("Vertical", 11),
    Sketcher.Constraint("Horizontal", 12),
    Sketcher.Constraint("Vertical", 13),
    Sketcher.Constraint("Horizontal", 14),
    Sketcher.Constraint("Vertical", 15),
    Sketcher.Constraint("Equal", 16, 17),
    Sketcher.Constraint("Horizontal", 16, 3, 1, 2),
    Sketcher.Constraint("Horizontal", 17, 3, 4, 2),
    Sketcher.Constraint("Horizontal", 3, 2, 8, 2),
    Sketcher.Constraint("Horizontal", 2, 2, 9, 2),
    Sketcher.Constraint("Horizontal", 7, 2, 12, 2),
    Sketcher.Constraint("Horizontal", 6, 2, 13, 2),
    Sketcher.Constraint("Vertical", 16, 3, 17, 3),
    Sketcher.Constraint("Vertical", 1, 2, 4, 2),
    Sketcher.Constraint("Vertical", 3, 2, 6, 2),
    Sketcher.Constraint("Vertical", 9, 2, 12, 2),
    Sketcher.Constraint("Vertical", 11, 2, 14, 2),
    Sketcher.Constraint("Equal", 6, 8),
    Sketcher.Constraint("Equal", 3, 5),
    Sketcher.Constraint("Diameter", 16, 4.5),
    Sketcher.Constraint("DistanceX", 0, 2, 0, 1, 6.0),
    Sketcher.Constraint("DistanceY", 1, 2, 1, 1, 8.0),
    Sketcher.Constraint("DistanceY", 17, 3, 16, 3, 15.0),
    Sketcher.Constraint("DistanceX", 10, 2, 1, 2, 13.5),
    Sketcher.Constraint("DistanceX", -1, 1, 16, 3, 176.5),
    Sketcher.Constraint("DistanceY", -1, 1, 16, 3, 75.6),
    Sketcher.Constraint("DistanceX", -1, 1, 0, 2, 183.25),
])
pocket4 = body.newObject("PartDesign::Pocket", "Pocket003")
pocket4.Profile = sketch6
pocket4.Type = "ThroughAll"

# Sketch on XY plane
sketch7 = body.newObject("Sketcher::SketchObject", "Sketch006")
sketch7.AttachmentSupport = (doc.getObject("XY_Plane"), [""])
sketch7.MapMode = "FlatFace"
sketch7.AttachmentOffset = App.Placement(Vector(0, 0, 6), App.Rotation())
sketch7.addGeometry([
    Part.Circle(Vector(51.5, 96, 0), Vector(0, 0, 1), 2.2),
    Part.Circle(Vector(75.5, 96, 0), Vector(0, 0, 1), 2.2),
    Part.Circle(Vector(277.5, 96, 0), Vector(0, 0, 1), 2.2),
    Part.Circle(Vector(301.5, 96, 0), Vector(0, 0, 1), 2.2),
], False)
sketch7.addConstraint([
    Sketcher.Constraint("Equal", 0, 1),
    Sketcher.Constraint("Equal", 1, 2),
    Sketcher.Constraint("Equal", 2, 3),
    Sketcher.Constraint("Horizontal", 0, 3, 1, 3),
    Sketcher.Constraint("Horizontal", 1, 3, 2, 3),
    Sketcher.Constraint("Horizontal", 2, 3, 3, 3),
    Sketcher.Constraint("Diameter", 0, 4.5),
    Sketcher.Constraint("DistanceX", 0, 3, 1, 3, 24.0),
    Sketcher.Constraint("DistanceX", 2, 3, 3, 3, 24.0),
    Sketcher.Constraint("DistanceY", -1, 1, 0, 3, 96.0),
    Sketcher.Constraint("DistanceX", 1, 3, 2, 3, 202.0),
    Sketcher.Constraint("DistanceX", -1, 1, 0, 3, 51.5),
])
pocket5 = body.newObject("PartDesign::Pocket", "Pocket004")
pocket5.Profile = sketch7
pocket5.Type = "ThroughAll"

# Sketch on XY plane
sketch8 = body.newObject("Sketcher::SketchObject", "Sketch007")
sketch8.AttachmentSupport = (doc.getObject("XY_Plane"), [""])
sketch8.MapMode = "FlatFace"
sketch8.AttachmentOffset = App.Placement(Vector(0, 0, 6), App.Rotation())
sketch8.addGeometry([
    Part.Circle(Vector(44, 86.5, 0), Vector(0, 0, 1), 2),
    Part.Circle(Vector(116.5, 86.5, 0), Vector(0, 0, 1), 2),
    Part.Circle(Vector(116.5, 14, 0), Vector(0, 0, 1), 2),
    Part.Circle(Vector(44, 14, 0), Vector(0, 0, 1), 2),
], False)
sketch8.addConstraint([
    Sketcher.Constraint("Equal", 0, 1),
    Sketcher.Constraint("Equal", 1, 2),
    Sketcher.Constraint("Equal", 2, 3),
    Sketcher.Constraint("Horizontal", 0, 3, 1, 3),
    Sketcher.Constraint("Horizontal", 2, 3, 3, 3),
    Sketcher.Constraint("Vertical", 1, 3, 2, 3),
    Sketcher.Constraint("Vertical", 0, 3, 3, 3),
    Sketcher.Constraint("Diameter", 0, 4.0),
    Sketcher.Constraint("DistanceX", 0, 3, 1, 3, 72.5),
    Sketcher.Constraint("DistanceY", 2, 3, 1, 3, 72.5),
    Sketcher.Constraint("DistanceX", -1, 1, 0, 3, 44.0),
    Sketcher.Constraint("DistanceY", -1, 1, 2, 3, 14.0),
])
pocket6 = body.newObject("PartDesign::Pocket", "Pocket005")
pocket6.Profile = sketch8
pocket6.Type = "ThroughAll"

# Sketch on XY plane
sketch9 = body.newObject("Sketcher::SketchObject", "Sketch008")
sketch9.AttachmentSupport = (doc.getObject("XY_Plane"), [""])
sketch9.MapMode = "FlatFace"
sketch9.AttachmentOffset = App.Placement(Vector(0, 0, 6), App.Rotation())
sketch9.addGeometry(Part.Circle(Vector(80, 50, 0), Vector(0, 0, 1), 38), False)
sketch9.addConstraint([
    Sketcher.Constraint("Diameter", 0, 75.0),
    Sketcher.Constraint("DistanceX", -1, 1, 0, 3, 80.25),
    Sketcher.Constraint("DistanceY", -1, 1, 0, 3, 50.25),
])
pocket7 = body.newObject("PartDesign::Pocket", "Pocket006")
pocket7.Profile = sketch9
pocket7.Type = "ThroughAll"

doc.recompute()
